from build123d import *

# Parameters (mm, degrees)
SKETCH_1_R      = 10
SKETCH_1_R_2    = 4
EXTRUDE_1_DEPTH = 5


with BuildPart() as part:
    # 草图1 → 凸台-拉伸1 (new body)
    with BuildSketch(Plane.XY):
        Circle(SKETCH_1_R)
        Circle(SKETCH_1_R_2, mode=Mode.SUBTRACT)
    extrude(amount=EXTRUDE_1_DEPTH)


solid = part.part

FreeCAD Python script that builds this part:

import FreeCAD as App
import Part
import Sketcher
from FreeCAD import Vector
Q = App.Units.Quantity

doc = App.newDocument("Part")
body = doc.addObject("PartDesign::Body", "Body")

# Sketch on XY plane
sketch1 = doc.addObject("Sketcher::SketchObject", "Sketch")
body.addObject(sketch1)
sketch1.AttachmentSupport = (doc.XY_Plane, [""])
sketch1.MapMode = "FlatFace"
sketch1.addGeometry(Part.Circle(Vector(0, 0, 0), Vector(0, 0, 1), 10), False)
sketch1.addGeometry(Part.Circle(Vector(0, 0, 0), Vector(0, 0, 1), 4), False)
sketch1.addConstraint(Sketcher.Constraint("Coincident", 0, 3, -1, 1))
sketch1.addConstraint(Sketcher.Constraint("Coincident", 1, 3, -1, 1))
sketch1.addConstraint(Sketcher.Constraint("Diameter", 0, Q("20 mm")))
sketch1.addConstraint(Sketcher.Constraint("Diameter", 1, Q("8 mm")))
pad1 = doc.addObject("PartDesign::Pad", "Pad")
body.addObject(pad1)
pad1.Profile = sketch1
pad1.Length = 5

doc.recompute()
